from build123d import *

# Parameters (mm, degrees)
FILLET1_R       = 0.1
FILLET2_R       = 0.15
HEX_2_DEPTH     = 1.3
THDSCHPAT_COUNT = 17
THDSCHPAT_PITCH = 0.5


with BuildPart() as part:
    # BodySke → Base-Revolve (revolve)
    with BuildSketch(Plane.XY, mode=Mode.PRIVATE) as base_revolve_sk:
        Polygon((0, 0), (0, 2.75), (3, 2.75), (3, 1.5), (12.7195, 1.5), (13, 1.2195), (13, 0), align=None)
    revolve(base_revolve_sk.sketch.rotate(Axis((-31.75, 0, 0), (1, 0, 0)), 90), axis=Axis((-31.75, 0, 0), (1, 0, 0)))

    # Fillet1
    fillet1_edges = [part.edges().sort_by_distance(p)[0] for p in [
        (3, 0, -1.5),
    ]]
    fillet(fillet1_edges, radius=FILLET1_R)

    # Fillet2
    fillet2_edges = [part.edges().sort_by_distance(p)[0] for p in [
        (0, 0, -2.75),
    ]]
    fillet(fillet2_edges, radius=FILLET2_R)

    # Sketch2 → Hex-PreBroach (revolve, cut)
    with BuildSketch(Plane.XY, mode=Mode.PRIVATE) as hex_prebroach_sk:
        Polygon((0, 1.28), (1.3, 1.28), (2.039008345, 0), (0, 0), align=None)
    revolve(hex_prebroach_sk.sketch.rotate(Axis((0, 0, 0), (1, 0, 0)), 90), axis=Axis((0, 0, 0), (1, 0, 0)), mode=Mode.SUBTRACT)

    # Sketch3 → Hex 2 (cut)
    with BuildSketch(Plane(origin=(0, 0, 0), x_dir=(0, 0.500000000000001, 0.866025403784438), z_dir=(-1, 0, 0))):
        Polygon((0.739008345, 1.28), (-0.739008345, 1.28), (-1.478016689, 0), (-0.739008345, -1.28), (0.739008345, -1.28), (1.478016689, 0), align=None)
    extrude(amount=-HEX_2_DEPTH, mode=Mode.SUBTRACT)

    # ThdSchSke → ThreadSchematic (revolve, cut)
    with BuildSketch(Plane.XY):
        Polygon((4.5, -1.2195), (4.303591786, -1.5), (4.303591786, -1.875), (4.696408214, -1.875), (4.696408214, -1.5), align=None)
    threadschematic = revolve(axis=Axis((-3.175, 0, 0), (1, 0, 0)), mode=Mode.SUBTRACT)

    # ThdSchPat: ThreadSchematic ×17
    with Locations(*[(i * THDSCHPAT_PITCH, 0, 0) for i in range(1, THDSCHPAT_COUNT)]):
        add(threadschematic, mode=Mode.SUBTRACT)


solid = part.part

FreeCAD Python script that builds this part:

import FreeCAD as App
import Part
import Sketcher

V = App.Vector
Q = App.Units.Quantity


def edges_at(feature, points):
    """Names of the edges that pass closest to the given points."""
    edges = feature.Shape.Edges
    near = lambda p: min(range(len(edges)), key=lambda i: edges[i].distToShape(Part.Vertex(*p))[0])
    return sorted({f"Edge{near(p) + 1}" for p in points})

doc = App.newDocument("Part")
body = doc.addObject("PartDesign::Body", "Body")

# Sketch on XY plane
sketch1 = doc.addObject("Sketcher::SketchObject", "Sketch")
body.addObject(sketch1)
sketch1.AttachmentSupport = (doc.XY_Plane, [""])
sketch1.MapMode = "FlatFace"
sketch1.addGeometry([
    Part.LineSegment(V(0, 2.75, 0), V(0, 0, 0)),  # 0
    Part.LineSegment(V(0, 0, 0), V(13, 0, 0)),  # 1
    Part.LineSegment(V(13, 0, 0), V(13, 1.2195, 0)),  # 2
    Part.LineSegment(V(13, 1.2195, 0), V(12.7195, 1.5, 0)),  # 3
    Part.LineSegment(V(12.7195, 1.5, 0), V(3, 1.5, 0)),  # 4
    Part.LineSegment(V(3, 1.5, 0), V(3, 2.75, 0)),  # 5
    Part.LineSegment(V(3, 2.75, 0), V(0, 2.75, 0)),  # 6
], False)
sketch1.addConstraint([
    Sketcher.Constraint("Coincident", 0, 2, 1, 1),
    Sketcher.Constraint("Coincident", 1, 2, 2, 1),
    Sketcher.Constraint("Coincident", 2, 2, 3, 1),
    Sketcher.Constraint("Coincident", 3, 2, 4, 1),
    Sketcher.Constraint("Coincident", 4, 2, 5, 1),
    Sketcher.Constraint("Coincident", 5, 2, 6, 1),
    Sketcher.Constraint("Coincident", 6, 2, 0, 1),
    Sketcher.Constraint("Vertical", 0),
    Sketcher.Constraint("Horizontal", 1),
    Sketcher.Constraint("Vertical", 2),
    Sketcher.Constraint("Horizontal", 4),
    Sketcher.Constraint("Vertical", 5),
    Sketcher.Constraint("Horizontal", 6),
    Sketcher.Constraint("Coincident", 0, 2, -1, 1),
    Sketcher.Constraint("DistanceX", 1, 1, 1, 2, Q("13 mm")),
    Sketcher.Constraint("DistanceX", 6, 2, 6, 1, Q("3 mm")),
    Sketcher.Constraint("Angle", 3, Q("135 deg")),
    Sketcher.Constraint("DistanceY", 0, 2, 0, 1, Q("2.75 mm")),
    Sketcher.Constraint("DistanceY", 5, 1, 5, 2, Q("1.25 mm")),
    Sketcher.Constraint("DistanceX", 4, 2, 4, 1, Q("9.7195 mm")),
])
revolution = doc.addObject("PartDesign::Revolution", "Revolution")
body.addObject(revolution)
revolution.Profile = sketch1
revolution.ReferenceAxis = (sketch1, ["H_Axis"])
revolution.Angle = 360
doc.recompute()

fillet = doc.addObject("PartDesign::Fillet", "Fillet")
body.addObject(fillet)
fillet.Base = (revolution, edges_at(revolution, [(3, 0, -1.5)]))
fillet.Radius = 0.1
doc.recompute()

fillet2 = doc.addObject("PartDesign::Fillet", "Fillet001")
body.addObject(fillet2)
fillet2.Base = (fillet, edges_at(fillet, [(0, 0, -2.75)]))
fillet2.Radius = 0.15

# Sketch on XY plane
sketch2 = doc.addObject("Sketcher::SketchObject", "Sketch001")
body.addObject(sketch2)
sketch2.AttachmentSupport = (doc.XY_Plane, [""])
sketch2.MapMode = "FlatFace"
sketch2.addGeometry([
    Part.LineSegment(V(1.3, 1.28, 0), V(0, 1.28, 0)),
    Part.LineSegment(V(0, 1.28, 0), V(0, 0, 0)),
    Part.LineSegment(V(0, 0, 0), V(2.039008, 0, 0)),
    Part.LineSegment(V(2.039008, 0, 0), V(1.3, 1.28, 0)),
], False)
sketch2.addConstraint([
    Sketcher.Constraint("Coincident", 0, 2, 1, 1),
    Sketcher.Constraint("Coincident", 1, 2, 2, 1),
    Sketcher.Constraint("Coincident", 2, 2, 3, 1),
    Sketcher.Constraint("Coincident", 3, 2, 0, 1),
    Sketcher.Constraint("Horizontal", 0),
    Sketcher.Constraint("Vertical", 1),
    Sketcher.Constraint("Horizontal", 2),
    Sketcher.Constraint("Coincident", 1, 2, -1, 1),
    Sketcher.Constraint("Angle", 3, Q("120 deg")),
    Sketcher.Constraint("DistanceX", 0, 2, 0, 1, Q("1.3 mm")),
    Sketcher.Constraint("DistanceY", 1, 2, 1, 1, Q("1.28 mm")),
])
groove = doc.addObject("PartDesign::Groove", "Groove")
body.addObject(groove)
groove.Profile = sketch2
groove.ReferenceAxis = (sketch2, ["H_Axis"])
groove.Angle = 360

# Sketch on YZ plane
sketch3 = doc.addObject("Sketcher::SketchObject", "Sketch002")
body.addObject(sketch3)
sketch3.AttachmentSupport = (doc.YZ_Plane, [""])
sketch3.MapMode = "FlatFace"
sketch3.addGeometry([
    Part.LineSegment(V(1.478017, 0, 0), V(0.739008, -1.28, 0)),  # 0
    Part.LineSegment(V(0.739008, -1.28, 0), V(-0.739008, -1.28, 0)),  # 1
    Part.LineSegment(V(-0.739008, -1.28, 0), V(-1.478017, 0, 0)),  # 2
    Part.LineSegment(V(-1.478017, 0, 0), V(-0.739008, 1.28, 0)),  # 3
    Part.LineSegment(V(-0.739008, 1.28, 0), V(0.739008, 1.28, 0)),  # 4
    Part.LineSegment(V(0.739008, 1.28, 0), V(1.478017, 0, 0)),  # 5
], False)
sketch3.addConstraint([
    Sketcher.Constraint("Coincident", 0, 2, 1, 1),
    Sketcher.Constraint("Coincident", 1, 2, 2, 1),
    Sketcher.Constraint("Coincident", 2, 2, 3, 1),
    Sketcher.Constraint("Coincident", 3, 2, 4, 1),
    Sketcher.Constraint("Coincident", 4, 2, 5, 1),
    Sketcher.Constraint("Coincident", 5, 2, 0, 1),
    Sketcher.Constraint("Horizontal", 1),
    Sketcher.Constraint("Horizontal", 4),
    Sketcher.Constraint("Symmetric", 0, 2, 3, 2, -1, 1),
    Sketcher.Constraint("Symmetric", 2, 2, 5, 2, -1, 1),
    Sketcher.Constraint("PointOnObject", 2, 2, -1),
    Sketcher.Constraint("Parallel", 2, 5),
    Sketcher.Constraint("Vertical", 1, 2, 3, 2),
    Sketcher.Constraint("Angle", 0, Q("-120 deg")),
    Sketcher.Constraint("DistanceY", 0, 2, -1, 1, Q("1.28 mm")),
    Sketcher.Constraint("DistanceX", 1, 2, 1, 1, Q("1.478017 mm")),
])
pocket1 = doc.addObject("PartDesign::Pocket", "Pocket")
body.addObject(pocket1)
pocket1.Profile = sketch3
pocket1.Length = 1.3
pocket1.Reversed = True

# Sketch on XY plane
sketch4 = doc.addObject("Sketcher::SketchObject", "Sketch003")
body.addObject(sketch4)
sketch4.AttachmentSupport = (doc.XY_Plane, [""])
sketch4.MapMode = "FlatFace"
sketch4.addGeometry([
    Part.LineSegment(V(4.5, -1.2195, 0), V(4.303592, -1.5, 0)),  # 0
    Part.LineSegment(V(4.303592, -1.5, 0), V(4.303592, -1.875, 0)),  # 1
    Part.LineSegment(V(4.303592, -1.875, 0), V(4.696408, -1.875, 0)),  # 2
    Part.LineSegment(V(4.696408, -1.875, 0), V(4.696408, -1.5, 0)),  # 3
    Part.LineSegment(V(4.696408, -1.5, 0), V(4.5, -1.2195, 0)),  # 4
], False)
sketch4.addConstraint([
    Sketcher.Constraint("Coincident", 0, 2, 1, 1),
    Sketcher.Constraint("Coincident", 1, 2, 2, 1),
    Sketcher.Constraint("Coincident", 2, 2, 3, 1),
    Sketcher.Constraint("Coincident", 3, 2, 4, 1),
    Sketcher.Constraint("Coincident", 4, 2, 0, 1),
    Sketcher.Constraint("Vertical", 1),
    Sketcher.Constraint("Horizontal", 2),
    Sketcher.Constraint("Vertical", 3),
    Sketcher.Constraint("Horizontal", 0, 2, 3, 2),
    Sketcher.Constraint("Equal", 0, 4),
    Sketcher.Constraint("Angle", 0, Q("-125 deg")),
    Sketcher.Constraint("DistanceY", 0, 2, -1, 1, Q("1.5 mm")),
    Sketcher.Constraint("DistanceX", -1, 1, 4, 2, Q("4.5 mm")),
    Sketcher.Constraint("DistanceY", 1, 2, 1, 1, Q("0.375 mm")),
    Sketcher.Constraint("DistanceY", 4, 2, -1, 1, Q("1.2195 mm")),
])
groove2 = doc.addObject("PartDesign::Groove", "Groove001")
body.addObject(groove2)
groove2.Profile = sketch4
groove2.ReferenceAxis = (sketch4, ["H_Axis"])
groove2.Angle = 360
doc.recompute()

linearpattern = doc.addObject("PartDesign::LinearPattern", "LinearPattern")
body.addObject(linearpattern)
linearpattern.Originals = [groove2]
linearpattern.Direction = (doc.X_Axis, [""])
linearpattern.Mode = "offset"
linearpattern.Offset = 0.5
linearpattern.Occurrences = 17
body.Tip = linearpattern

doc.recompute()
